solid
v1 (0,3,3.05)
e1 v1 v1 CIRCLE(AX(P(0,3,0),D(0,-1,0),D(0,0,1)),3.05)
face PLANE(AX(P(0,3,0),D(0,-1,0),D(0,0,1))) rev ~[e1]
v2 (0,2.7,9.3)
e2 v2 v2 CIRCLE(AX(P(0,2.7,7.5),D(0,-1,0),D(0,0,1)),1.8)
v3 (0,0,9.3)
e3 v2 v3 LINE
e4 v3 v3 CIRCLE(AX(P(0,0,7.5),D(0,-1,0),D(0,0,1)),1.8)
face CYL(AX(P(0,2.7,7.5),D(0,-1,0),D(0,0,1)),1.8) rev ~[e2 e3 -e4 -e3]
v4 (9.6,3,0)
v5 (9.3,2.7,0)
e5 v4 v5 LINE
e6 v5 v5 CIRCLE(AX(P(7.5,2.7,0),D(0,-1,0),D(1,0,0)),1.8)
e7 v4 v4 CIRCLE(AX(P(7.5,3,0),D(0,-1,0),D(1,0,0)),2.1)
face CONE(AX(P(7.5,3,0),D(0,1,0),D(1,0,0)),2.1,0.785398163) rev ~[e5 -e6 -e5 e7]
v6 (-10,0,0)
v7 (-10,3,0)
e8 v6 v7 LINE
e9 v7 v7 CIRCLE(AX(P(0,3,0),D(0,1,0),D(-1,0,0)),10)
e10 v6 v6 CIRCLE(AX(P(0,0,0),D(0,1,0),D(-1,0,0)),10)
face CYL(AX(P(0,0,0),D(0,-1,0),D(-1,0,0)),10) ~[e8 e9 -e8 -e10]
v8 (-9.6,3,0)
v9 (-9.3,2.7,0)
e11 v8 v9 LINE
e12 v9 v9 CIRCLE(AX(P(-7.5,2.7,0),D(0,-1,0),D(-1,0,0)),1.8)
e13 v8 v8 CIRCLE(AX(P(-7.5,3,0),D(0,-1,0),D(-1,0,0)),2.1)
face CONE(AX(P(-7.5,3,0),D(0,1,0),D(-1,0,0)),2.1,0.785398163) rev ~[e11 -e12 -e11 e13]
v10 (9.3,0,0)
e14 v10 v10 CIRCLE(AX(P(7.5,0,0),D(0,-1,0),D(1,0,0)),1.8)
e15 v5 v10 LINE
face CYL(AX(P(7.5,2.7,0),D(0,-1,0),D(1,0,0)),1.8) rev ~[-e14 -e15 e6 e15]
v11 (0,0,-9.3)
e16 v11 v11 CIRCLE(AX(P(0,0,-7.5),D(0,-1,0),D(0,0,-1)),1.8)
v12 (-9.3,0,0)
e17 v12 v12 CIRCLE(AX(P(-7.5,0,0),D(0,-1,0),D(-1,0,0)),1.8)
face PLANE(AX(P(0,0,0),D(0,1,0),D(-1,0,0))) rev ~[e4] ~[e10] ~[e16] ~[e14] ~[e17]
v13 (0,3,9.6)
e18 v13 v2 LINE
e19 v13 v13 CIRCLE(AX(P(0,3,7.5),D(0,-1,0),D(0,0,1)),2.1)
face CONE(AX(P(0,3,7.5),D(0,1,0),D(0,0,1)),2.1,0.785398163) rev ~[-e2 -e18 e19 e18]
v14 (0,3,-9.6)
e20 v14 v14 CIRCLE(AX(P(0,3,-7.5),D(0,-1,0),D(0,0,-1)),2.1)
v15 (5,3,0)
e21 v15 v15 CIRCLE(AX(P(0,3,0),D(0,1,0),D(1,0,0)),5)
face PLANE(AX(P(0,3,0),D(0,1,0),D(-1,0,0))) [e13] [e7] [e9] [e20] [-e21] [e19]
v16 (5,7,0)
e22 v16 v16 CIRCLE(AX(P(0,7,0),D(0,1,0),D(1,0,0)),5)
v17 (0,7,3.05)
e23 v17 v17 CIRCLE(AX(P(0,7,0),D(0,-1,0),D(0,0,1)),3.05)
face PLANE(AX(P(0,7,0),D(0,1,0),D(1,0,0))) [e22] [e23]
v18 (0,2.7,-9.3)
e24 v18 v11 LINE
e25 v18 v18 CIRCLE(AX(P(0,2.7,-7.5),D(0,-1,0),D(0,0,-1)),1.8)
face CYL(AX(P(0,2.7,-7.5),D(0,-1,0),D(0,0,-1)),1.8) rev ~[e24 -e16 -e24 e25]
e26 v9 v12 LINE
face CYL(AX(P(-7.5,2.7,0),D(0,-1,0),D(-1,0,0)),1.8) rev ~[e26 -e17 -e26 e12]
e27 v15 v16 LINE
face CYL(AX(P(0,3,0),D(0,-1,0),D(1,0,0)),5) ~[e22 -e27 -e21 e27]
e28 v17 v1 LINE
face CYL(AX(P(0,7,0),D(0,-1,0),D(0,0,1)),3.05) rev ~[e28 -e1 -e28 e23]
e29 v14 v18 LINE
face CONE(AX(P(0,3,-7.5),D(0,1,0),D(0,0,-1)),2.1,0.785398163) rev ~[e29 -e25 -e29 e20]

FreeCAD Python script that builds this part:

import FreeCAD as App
import Part
import Sketcher

V = App.Vector

doc = App.newDocument("Part")
body = doc.addObject("PartDesign::Body", "Body")

# Sketch on XZ plane
sketch1 = body.newObject("Sketcher::SketchObject", "Sketch")
sketch1.AttachmentSupport = (doc.getObject("XZ_Plane"), [""])
sketch1.MapMode = "FlatFace"
sketch1.addGeometry(Part.Circle(V(0, 0, 0), V(0, 0, 1), 10), False)
sketch1.addConstraint(Sketcher.Constraint("Coincident", 0, 3, -1, 1))
sketch1.addConstraint(Sketcher.Constraint("Diameter", 0, 20.0))
pad1 = body.newObject("PartDesign::Pad", "Pad")
pad1.Profile = sketch1
pad1.Length = 3
pad1.Reversed = True

# Sketch on XZ plane
sketch2 = body.newObject("Sketcher::SketchObject", "Sketch001")
sketch2.AttachmentSupport = (doc.getObject("XZ_Plane"), [""])
sketch2.MapMode = "FlatFace"
sketch2.AttachmentOffset = App.Placement(V(0, 0, -3), App.Rotation())
sketch2.addGeometry(Part.Circle(V(0, 0, 0), V(0, 0, 1), 5), False)
sketch2.addConstraint(Sketcher.Constraint("Coincident", 0, 3, -1, 1))
sketch2.addConstraint(Sketcher.Constraint("Diameter", 0, 10.0))
pad2 = body.newObject("PartDesign::Pad", "Pad001")
pad2.Profile = sketch2
pad2.Length = 4
pad2.Reversed = True

# Sketch on XZ plane
sketch3 = body.newObject("Sketcher::SketchObject", "Sketch002")
sketch3.AttachmentSupport = (doc.getObject("XZ_Plane"), [""])
sketch3.MapMode = "FlatFace"
sketch3.AttachmentOffset = App.Placement(V(0, 0, -7), App.Rotation())
sketch3.addGeometry(Part.Circle(V(0, 0, 0), V(0, 0, 1), 3), False)
sketch3.addConstraint(Sketcher.Constraint("Coincident", 0, 3, -1, 1))
sketch3.addConstraint(Sketcher.Constraint("Diameter", 0, 6.1))
doc.recompute()
hole = body.newObject("PartDesign::Hole", "Hole")
hole.Profile = sketch3
hole.ThreadType = "None"
hole.Diameter = 6.1
hole.DepthType = "Dimension"
hole.Depth = 4
hole.DrillPoint = "Flat"
hole.Reversed = True

# Sketch on XZ plane
sketch4 = body.newObject("Sketcher::SketchObject", "Sketch003")
sketch4.AttachmentSupport = (doc.getObject("XZ_Plane"), [""])
sketch4.MapMode = "FlatFace"
sketch4.AttachmentOffset = App.Placement(V(0, 0, -3), App.Rotation())
sketch4.addGeometry(Part.Circle(V(0, 7.5, 0), V(0, 0, 1), 1.8), False)
sketch4.addConstraint(Sketcher.Constraint("PointOnObject", 0, 3, -2))
sketch4.addConstraint(Sketcher.Constraint("Diameter", 0, 3.6))
sketch4.addConstraint(Sketcher.Constraint("DistanceY", -1, 1, 0, 3, 7.5))
doc.recompute()
hole2 = body.newObject("PartDesign::Hole", "Hole001")
hole2.Profile = sketch4
hole2.ThreadType = "None"
hole2.Diameter = 3.6
hole2.DepthType = "Dimension"
hole2.Depth = 4
hole2.DrillPoint = "Flat"
hole2.HoleCutType = "Countersink"
hole2.HoleCutDiameter = 4.2
hole2.HoleCutCountersinkAngle = 90
hole2.Reversed = True
doc.recompute()

polarpattern = body.newObject("PartDesign::PolarPattern", "PolarPattern")
polarpattern.Originals = [hole2]
polarpattern.Axis = (doc.getObject("Y_Axis"), [""])
polarpattern.Angle = 360
polarpattern.Occurrences = 4
body.Tip = polarpattern

doc.recompute()
